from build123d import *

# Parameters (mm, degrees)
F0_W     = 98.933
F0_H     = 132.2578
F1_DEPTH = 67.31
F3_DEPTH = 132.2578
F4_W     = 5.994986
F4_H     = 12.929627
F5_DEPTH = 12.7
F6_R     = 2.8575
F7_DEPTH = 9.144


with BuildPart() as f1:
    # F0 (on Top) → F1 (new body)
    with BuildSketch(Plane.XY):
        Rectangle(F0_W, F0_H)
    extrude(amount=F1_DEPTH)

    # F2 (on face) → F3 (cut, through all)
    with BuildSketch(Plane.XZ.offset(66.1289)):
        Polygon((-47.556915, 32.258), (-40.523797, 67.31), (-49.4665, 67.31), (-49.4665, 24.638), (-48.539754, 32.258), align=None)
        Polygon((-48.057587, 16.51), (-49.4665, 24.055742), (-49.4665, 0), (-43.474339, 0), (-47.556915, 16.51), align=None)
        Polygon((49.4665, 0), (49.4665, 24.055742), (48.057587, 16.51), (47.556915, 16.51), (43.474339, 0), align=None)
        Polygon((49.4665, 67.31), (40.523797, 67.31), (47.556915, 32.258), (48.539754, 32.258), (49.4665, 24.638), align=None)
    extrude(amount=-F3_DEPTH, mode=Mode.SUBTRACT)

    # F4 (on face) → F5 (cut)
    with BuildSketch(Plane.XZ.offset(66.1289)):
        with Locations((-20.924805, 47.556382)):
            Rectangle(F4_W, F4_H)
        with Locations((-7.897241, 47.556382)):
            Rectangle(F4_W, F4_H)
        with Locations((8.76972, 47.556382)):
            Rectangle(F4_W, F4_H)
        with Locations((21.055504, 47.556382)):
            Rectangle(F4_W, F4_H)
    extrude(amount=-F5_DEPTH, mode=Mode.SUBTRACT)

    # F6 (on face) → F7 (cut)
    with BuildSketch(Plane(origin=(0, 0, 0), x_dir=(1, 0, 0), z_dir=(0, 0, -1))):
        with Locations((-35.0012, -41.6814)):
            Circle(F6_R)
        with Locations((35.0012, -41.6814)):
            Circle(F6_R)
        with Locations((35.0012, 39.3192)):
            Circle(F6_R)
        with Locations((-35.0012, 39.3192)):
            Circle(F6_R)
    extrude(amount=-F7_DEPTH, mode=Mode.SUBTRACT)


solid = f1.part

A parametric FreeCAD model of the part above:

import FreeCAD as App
import Part
import Sketcher
from FreeCAD import Vector
Q = App.Units.Quantity

doc = App.newDocument("Part")
params = doc.addObject("Spreadsheet::Sheet", "Params")
for row, (alias, value) in enumerate([
    ("sketch1_width", "3.895 in"),
    ("sketch1_height", "5.207 in"),
    ("pad1_length", "2.65 in"),
    ("sketch2_height", "1.68 in"),
    ("pocket2_length", "0.5 in"),
    ("sketch4_diameter", "0.225 in"),
    ("pocket3_length", "0.36 in"),
], start=1):
    params.set(f"A{row}", alias)
    params.set(f"B{row}", "=" + value)
    params.setAlias(f"B{row}", alias)

body = doc.addObject("PartDesign::Body", "Body")

# Sketch on XY plane
sketch1 = body.newObject("Sketcher::SketchObject", "Sketch")
sketch1.AttachmentSupport = (doc.getObject("XY_Plane"), [""])
sketch1.MapMode = "FlatFace"
sketch1.addGeometry([
    Part.LineSegment(Vector(-49, 66, 0), Vector(-49, -66, 0)),
    Part.LineSegment(Vector(-49, -66, 0), Vector(49, -66, 0)),
    Part.LineSegment(Vector(49, -66, 0), Vector(49, 66, 0)),
    Part.LineSegment(Vector(49, 66, 0), Vector(-49, 66, 0)),
], False)
sketch1.addConstraint([
    Sketcher.Constraint("Coincident", 0, 2, 1, 1),
    Sketcher.Constraint("Coincident", 1, 2, 2, 1),
    Sketcher.Constraint("Coincident", 2, 2, 3, 1),
    Sketcher.Constraint("Coincident", 3, 2, 0, 1),
    Sketcher.Constraint("Vertical", 0),
    Sketcher.Constraint("Horizontal", 1),
    Sketcher.Constraint("Vertical", 2),
    Sketcher.Constraint("Horizontal", 3),
    Sketcher.Constraint("Symmetric", 0, 2, 2, 2, -1, 1),
    Sketcher.Constraint("DistanceX", 1, 1, 1, 2, Q("3.895 in")),
    Sketcher.Constraint("DistanceY", 0, 2, 0, 1, Q("5.207 in")),
])
sketch1.setExpression("Constraints[9]", "Params.sketch1_width")
sketch1.setExpression("Constraints[10]", "Params.sketch1_height")
pad1 = body.newObject("PartDesign::Pad", "Pad")
pad1.Profile = sketch1
pad1.setExpression("Length", "Params.pad1_length")

# Sketch on XZ plane
sketch2 = body.newObject("Sketcher::SketchObject", "Sketch001")
sketch2.AttachmentSupport = (doc.getObject("XZ_Plane"), [""])
sketch2.MapMode = "FlatFace"
sketch2.AttachmentOffset = App.Placement(Vector(0, 0, 2.6035 * 25.4), App.Rotation())
sketch2.addGeometry([
    Part.LineSegment(Vector(-47.6, 32.3, 0), Vector(-40.5, 67.3, 0)),  # 0
    Part.LineSegment(Vector(-40.5, 67.3, 0), Vector(-49.5, 67.3, 0)),  # 1
    Part.LineSegment(Vector(-49.5, 67.3, 0), Vector(-49.5, 24.6, 0)),  # 2
    Part.LineSegment(Vector(-49.5, 24.6, 0), Vector(-48.5, 32.3, 0)),  # 3
    Part.LineSegment(Vector(-48.5, 32.3, 0), Vector(-47.6, 32.3, 0)),  # 4
    Part.LineSegment(Vector(-48.1, 16.5, 0), Vector(-49.5, 24.1, 0)),  # 5
    Part.LineSegment(Vector(-49.5, 24.1, 0), Vector(-49.5, 0, 0)),  # 6
    Part.LineSegment(Vector(-49.5, 0, 0), Vector(-43.5, 0, 0)),  # 7
    Part.LineSegment(Vector(-43.5, 0, 0), Vector(-47.6, 16.5, 0)),  # 8
    Part.LineSegment(Vector(-47.6, 16.5, 0), Vector(-48.1, 16.5, 0)),  # 9
    Part.LineSegment(Vector(49.5, 0, 0), Vector(49.5, 24.1, 0)),  # 10
    Part.LineSegment(Vector(49.5, 24.1, 0), Vector(48.1, 16.5, 0)),  # 11
    Part.LineSegment(Vector(48.1, 16.5, 0), Vector(47.6, 16.5, 0)),  # 12
    Part.LineSegment(Vector(47.6, 16.5, 0), Vector(43.5, 0, 0)),  # 13
    Part.LineSegment(Vector(43.5, 0, 0), Vector(49.5, 0, 0)),  # 14
    Part.LineSegment(Vector(49.5, 67.3, 0), Vector(40.5, 67.3, 0)),  # 15
    Part.LineSegment(Vector(40.5, 67.3, 0), Vector(47.6, 32.3, 0)),  # 16
    Part.LineSegment(Vector(47.6, 32.3, 0), Vector(48.5, 32.3, 0)),  # 17
    Part.LineSegment(Vector(48.5, 32.3, 0), Vector(49.5, 24.6, 0)),  # 18
    Part.LineSegment(Vector(49.5, 24.6, 0), Vector(49.5, 67.3, 0)),  # 19
], False)
sketch2.addConstraint([
    Sketcher.Constraint("Coincident", 0, 2, 1, 1),
    Sketcher.Constraint("Coincident", 1, 2, 2, 1),
    Sketcher.Constraint("Coincident", 2, 2, 3, 1),
    Sketcher.Constraint("Coincident", 3, 2, 4, 1),
    Sketcher.Constraint("Coincident", 4, 2, 0, 1),
    Sketcher.Constraint("Coincident", 5, 2, 6, 1),
    Sketcher.Constraint("Coincident", 6, 2, 7, 1),
    Sketcher.Constraint("Coincident", 7, 2, 8, 1),
    Sketcher.Constraint("Coincident", 8, 2, 9, 1),
    Sketcher.Constraint("Coincident", 9, 2, 5, 1),
    Sketcher.Constraint("Coincident", 10, 2, 11, 1),
    Sketcher.Constraint("Coincident", 11, 2, 12, 1),
    Sketcher.Constraint("Coincident", 12, 2, 13, 1),
    Sketcher.Constraint("Coincident", 13, 2, 14, 1),
    Sketcher.Constraint("Coincident", 14, 2, 10, 1),
    Sketcher.Constraint("Coincident", 15, 2, 16, 1),
    Sketcher.Constraint("Coincident", 16, 2, 17, 1),
    Sketcher.Constraint("Coincident", 17, 2, 18, 1),
    Sketcher.Constraint("Coincident", 18, 2, 19, 1),
    Sketcher.Constraint("Coincident", 19, 2, 15, 1),
    Sketcher.Constraint("Horizontal", 1),
    Sketcher.Constraint("Vertical", 2),
    Sketcher.Constraint("Horizontal", 4),
    Sketcher.Constraint("Vertical", 6),
    Sketcher.Constraint("Horizontal", 7),
    Sketcher.Constraint("Horizontal", 9),
    Sketcher.Constraint("Vertical", 10),
    Sketcher.Constraint("Horizontal", 12),
    Sketcher.Constraint("Horizontal", 14),
    Sketcher.Constraint("Horizontal", 15),
    Sketcher.Constraint("Horizontal", 17),
    Sketcher.Constraint("Vertical", 19),
    Sketcher.Constraint("Symmetric", 7, 2, 13, 2, -1, 1),
    Sketcher.Constraint("Symmetric", 5, 2, 10, 2, -2),
    Sketcher.Constraint("Symmetric", 9, 2, 11, 2, -2),
    Sketcher.Constraint("Symmetric", 0, 2, 15, 2, -2),
    Sketcher.Constraint("Symmetric", 4, 2, 16, 2, -2),
    Sketcher.Constraint("Symmetric", 2, 2, 18, 2, -2),
    Sketcher.Constraint("PointOnObject", 6, 2, -1),
    Sketcher.Constraint("Vertical", 2, 2, 5, 2),
    Sketcher.Constraint("Vertical", 4, 2, 8, 2),
    Sketcher.Constraint("Vertical", 12, 2, 16, 2),
    Sketcher.Constraint("Equal", 4, 17),
    Sketcher.Constraint("Equal", 3, 5),
    Sketcher.Constraint("DistanceY", 12, 2, 15, 2, Q("2 in")),
    Sketcher.Constraint("DistanceY", 2, 2, 2, 1, Q("1.68 in")),
    Sketcher.Constraint("DistanceY", 2, 2, 3, 2, Q("0.3 in")),
    Sketcher.Constraint("DistanceY", -1, 1, 0, 2, Q("2.65 in")),
    Sketcher.Constraint("DistanceX", 1, 2, -1, 1, Q("1.9475 in")),
    Sketcher.Constraint("DistanceX", 4, 1, 4, 2, 0.982839),
    Sketcher.Constraint("DistanceX", 7, 1, 7, 2, 5.992161),
    Sketcher.Constraint("DistanceY", 6, 2, 6, 1, 24.055742),
    Sketcher.Constraint("DistanceX", 8, 2, 11, 2, 95.614502),
    Sketcher.Constraint("Distance", 0, 35.750629),
])
sketch2.setExpression("Constraints[45]", "Params.sketch2_height")
pocket1 = body.newObject("PartDesign::Pocket", "Pocket")
pocket1.Profile = sketch2
pocket1.Type = "ThroughAll"

# Sketch on XZ plane
sketch3 = body.newObject("Sketcher::SketchObject", "Sketch002")
sketch3.AttachmentSupport = (doc.getObject("XZ_Plane"), [""])
sketch3.MapMode = "FlatFace"
sketch3.AttachmentOffset = App.Placement(Vector(0, 0, 2.6035 * 25.4), App.Rotation())
sketch3.addGeometry([
    Part.LineSegment(Vector(-24, 54, 0), Vector(-24, 41, 0)),  # 0
    Part.LineSegment(Vector(-24, 41, 0), Vector(-18, 41, 0)),  # 1
    Part.LineSegment(Vector(-18, 41, 0), Vector(-18, 54, 0)),  # 2
    Part.LineSegment(Vector(-18, 54, 0), Vector(-24, 54, 0)),  # 3
    Part.LineSegment(Vector(-11, 54, 0), Vector(-11, 41, 0)),  # 4
    Part.LineSegment(Vector(-11, 41, 0), Vector(-5, 41, 0)),  # 5
    Part.LineSegment(Vector(-5, 41, 0), Vector(-5, 54, 0)),  # 6
    Part.LineSegment(Vector(-5, 54, 0), Vector(-11, 54, 0)),  # 7
    Part.LineSegment(Vector(6, 54, 0), Vector(6, 41, 0)),  # 8
    Part.LineSegment(Vector(6, 41, 0), Vector(12, 41, 0)),  # 9
    Part.LineSegment(Vector(12, 41, 0), Vector(12, 54, 0)),  # 10
    Part.LineSegment(Vector(12, 54, 0), Vector(6, 54, 0)),  # 11
    Part.LineSegment(Vector(18, 54, 0), Vector(18, 41, 0)),  # 12
    Part.LineSegment(Vector(18, 41, 0), Vector(24, 41, 0)),  # 13
    Part.LineSegment(Vector(24, 41, 0), Vector(24, 54, 0)),  # 14
    Part.LineSegment(Vector(24, 54, 0), Vector(18, 54, 0)),  # 15
], False)
sketch3.addConstraint([
    Sketcher.Constraint("Coincident", 0, 2, 1, 1),
    Sketcher.Constraint("Coincident", 1, 2, 2, 1),
    Sketcher.Constraint("Coincident", 2, 2, 3, 1),
    Sketcher.Constraint("Coincident", 3, 2, 0, 1),
    Sketcher.Constraint("Coincident", 4, 2, 5, 1),
    Sketcher.Constraint("Coincident", 5, 2, 6, 1),
    Sketcher.Constraint("Coincident", 6, 2, 7, 1),
    Sketcher.Constraint("Coincident", 7, 2, 4, 1),
    Sketcher.Constraint("Coincident", 8, 2, 9, 1),
    Sketcher.Constraint("Coincident", 9, 2, 10, 1),
    Sketcher.Constraint("Coincident", 10, 2, 11, 1),
    Sketcher.Constraint("Coincident", 11, 2, 8, 1),
    Sketcher.Constraint("Coincident", 12, 2, 13, 1),
    Sketcher.Constraint("Coincident", 13, 2, 14, 1),
    Sketcher.Constraint("Coincident", 14, 2, 15, 1),
    Sketcher.Constraint("Coincident", 15, 2, 12, 1),
    Sketcher.Constraint("Vertical", 0),
    Sketcher.Constraint("Horizontal", 1),
    Sketcher.Constraint("Vertical", 2),
    Sketcher.Constraint("Horizontal", 3),
    Sketcher.Constraint("Vertical", 4),
    Sketcher.Constraint("Horizontal", 5),
    Sketcher.Constraint("Vertical", 6),
    Sketcher.Constraint("Horizontal", 7),
    Sketcher.Constraint("Vertical", 8),
    Sketcher.Constraint("Horizontal", 9),
    Sketcher.Constraint("Vertical", 10),
    Sketcher.Constraint("Horizontal", 11),
    Sketcher.Constraint("Vertical", 12),
    Sketcher.Constraint("Horizontal", 13),
    Sketcher.Constraint("Vertical", 14),
    Sketcher.Constraint("Horizontal", 15),
    Sketcher.Constraint("Horizontal", 1, 2, 4, 2),
    Sketcher.Constraint("Horizontal", 3, 2, 6, 2),
    Sketcher.Constraint("Horizontal", 5, 2, 8, 2),
    Sketcher.Constraint("Horizontal", 7, 2, 10, 2),
    Sketcher.Constraint("Horizontal", 9, 2, 12, 2),
    Sketcher.Constraint("Horizontal", 11, 2, 14, 2),
    Sketcher.Constraint("Equal", 3, 5),
    Sketcher.Constraint("Equal", 7, 9),
    Sketcher.Constraint("Equal", 11, 13),
    Sketcher.Constraint("DistanceX", 0, 2, -1, 1, 23.922298),
    Sketcher.Constraint("DistanceX", 9, 2, 12, 2, 6.290798),
    Sketcher.Constraint("DistanceX", 1, 1, 1, 2, 5.994986),
    Sketcher.Constraint("DistanceY", 0, 2, 0, 1, 12.929627),
    Sketcher.Constraint("DistanceY", -1, 1, 0, 2, 41.091569),
    Sketcher.Constraint("DistanceX", -1, 1, 12, 2, 18.058011),
    Sketcher.Constraint("DistanceX", 1, 2, 4, 2, 7.032578),
])
pocket2 = body.newObject("PartDesign::Pocket", "Pocket001")
pocket2.Profile = sketch3
pocket2.setExpression("Length", "Params.pocket2_length")

# Sketch on XY plane
sketch4 = body.newObject("Sketcher::SketchObject", "Sketch003")
sketch4.AttachmentSupport = (doc.getObject("XY_Plane"), [""])
sketch4.MapMode = "FlatFace"
sketch4.addGeometry([
    Part.Circle(Vector(-35, 41.7, 0), Vector(0, 0, 1), 2.9),
    Part.Circle(Vector(35, 41.7, 0), Vector(0, 0, 1), 2.9),
    Part.Circle(Vector(35, -39.3, 0), Vector(0, 0, 1), 2.9),
    Part.Circle(Vector(-35, -39.3, 0), Vector(0, 0, 1), 2.9),
], False)
sketch4.addConstraint([
    Sketcher.Constraint("Equal", 0, 1),
    Sketcher.Constraint("Equal", 1, 2),
    Sketcher.Constraint("Equal", 2, 3),
    Sketcher.Constraint("Symmetric", 0, 3, 1, 3, -2),
    Sketcher.Constraint("Symmetric", 2, 3, 3, 3, -2),
    Sketcher.Constraint("Vertical", 1, 3, 2, 3),
    Sketcher.Constraint("Diameter", 0, Q("0.225 in")),
    Sketcher.Constraint("DistanceX", 0, 3, -1, 1, Q("1.378 in")),
    Sketcher.Constraint("DistanceY", -1, 1, 0, 3, Q("1.641 in")),
    Sketcher.Constraint("DistanceY", 2, 3, -1, 1, Q("1.548 in")),
])
sketch4.setExpression("Constraints[6]", "Params.sketch4_diameter")
pocket3 = body.newObject("PartDesign::Pocket", "Pocket002")
pocket3.Profile = sketch4
pocket3.setExpression("Length", "Params.pocket3_length")
pocket3.Reversed = True

doc.recompute()
